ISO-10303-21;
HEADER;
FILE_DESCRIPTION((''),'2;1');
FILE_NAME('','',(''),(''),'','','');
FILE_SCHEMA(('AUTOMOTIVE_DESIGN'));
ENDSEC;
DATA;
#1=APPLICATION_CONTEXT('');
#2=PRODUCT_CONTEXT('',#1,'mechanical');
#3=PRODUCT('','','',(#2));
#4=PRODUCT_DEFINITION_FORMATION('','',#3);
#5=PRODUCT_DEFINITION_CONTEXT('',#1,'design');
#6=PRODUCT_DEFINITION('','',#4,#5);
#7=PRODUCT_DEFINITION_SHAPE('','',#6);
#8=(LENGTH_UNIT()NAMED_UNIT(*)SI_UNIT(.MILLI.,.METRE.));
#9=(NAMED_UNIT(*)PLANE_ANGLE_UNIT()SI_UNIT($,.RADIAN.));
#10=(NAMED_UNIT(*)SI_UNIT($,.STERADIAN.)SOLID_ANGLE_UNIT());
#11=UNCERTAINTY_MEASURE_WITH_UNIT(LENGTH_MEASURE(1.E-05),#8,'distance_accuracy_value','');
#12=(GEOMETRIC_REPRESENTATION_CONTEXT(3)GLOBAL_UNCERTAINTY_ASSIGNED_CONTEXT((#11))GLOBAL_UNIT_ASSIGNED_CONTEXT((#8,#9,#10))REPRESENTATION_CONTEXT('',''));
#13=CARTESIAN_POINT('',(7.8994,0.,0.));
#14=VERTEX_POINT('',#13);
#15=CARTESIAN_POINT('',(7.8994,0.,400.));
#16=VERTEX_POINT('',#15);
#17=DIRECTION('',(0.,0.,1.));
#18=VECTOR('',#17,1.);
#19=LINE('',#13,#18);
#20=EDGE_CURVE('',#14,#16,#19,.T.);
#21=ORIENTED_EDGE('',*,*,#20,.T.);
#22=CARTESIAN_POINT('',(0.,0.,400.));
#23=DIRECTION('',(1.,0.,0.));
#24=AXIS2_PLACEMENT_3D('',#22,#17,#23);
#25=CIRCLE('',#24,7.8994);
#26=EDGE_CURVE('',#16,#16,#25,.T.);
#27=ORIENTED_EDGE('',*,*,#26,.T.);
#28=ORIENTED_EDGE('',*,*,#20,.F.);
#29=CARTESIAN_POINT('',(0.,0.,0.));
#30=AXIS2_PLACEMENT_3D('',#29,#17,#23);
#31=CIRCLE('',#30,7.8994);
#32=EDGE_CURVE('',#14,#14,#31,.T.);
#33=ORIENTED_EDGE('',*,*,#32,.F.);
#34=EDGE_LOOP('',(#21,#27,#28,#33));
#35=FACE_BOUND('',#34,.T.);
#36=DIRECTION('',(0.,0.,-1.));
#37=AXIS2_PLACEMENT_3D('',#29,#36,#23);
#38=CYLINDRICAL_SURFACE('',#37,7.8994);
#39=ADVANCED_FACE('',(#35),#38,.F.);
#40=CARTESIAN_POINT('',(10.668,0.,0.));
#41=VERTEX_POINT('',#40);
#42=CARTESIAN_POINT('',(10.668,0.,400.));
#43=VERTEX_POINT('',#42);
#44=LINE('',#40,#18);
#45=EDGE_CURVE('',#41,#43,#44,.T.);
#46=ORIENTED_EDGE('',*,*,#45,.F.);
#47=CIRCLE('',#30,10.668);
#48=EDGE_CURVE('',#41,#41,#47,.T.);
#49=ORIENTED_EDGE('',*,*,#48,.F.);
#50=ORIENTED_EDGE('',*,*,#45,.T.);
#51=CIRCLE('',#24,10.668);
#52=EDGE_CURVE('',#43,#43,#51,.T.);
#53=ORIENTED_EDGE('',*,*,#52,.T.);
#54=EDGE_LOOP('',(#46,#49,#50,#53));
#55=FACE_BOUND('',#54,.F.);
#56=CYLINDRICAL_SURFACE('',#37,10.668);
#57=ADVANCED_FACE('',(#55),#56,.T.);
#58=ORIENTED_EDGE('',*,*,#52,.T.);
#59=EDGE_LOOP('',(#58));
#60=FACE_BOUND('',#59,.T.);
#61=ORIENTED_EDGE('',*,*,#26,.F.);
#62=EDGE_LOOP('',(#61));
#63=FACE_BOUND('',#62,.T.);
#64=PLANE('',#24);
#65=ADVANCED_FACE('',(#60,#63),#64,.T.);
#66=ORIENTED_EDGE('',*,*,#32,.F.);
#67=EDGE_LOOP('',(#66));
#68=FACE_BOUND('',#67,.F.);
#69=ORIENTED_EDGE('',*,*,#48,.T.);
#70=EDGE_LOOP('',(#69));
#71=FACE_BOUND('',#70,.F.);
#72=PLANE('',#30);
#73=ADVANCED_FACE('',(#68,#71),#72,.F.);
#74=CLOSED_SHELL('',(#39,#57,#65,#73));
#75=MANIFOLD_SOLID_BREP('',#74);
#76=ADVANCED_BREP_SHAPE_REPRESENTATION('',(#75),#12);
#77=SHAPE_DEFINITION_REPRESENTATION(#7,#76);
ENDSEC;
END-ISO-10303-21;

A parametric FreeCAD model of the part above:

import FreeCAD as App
import Part
import Sketcher
Q = App.Units.Quantity

doc = App.newDocument("Part")
params = doc.addObject("Spreadsheet::Sheet", "Params")
for row, (alias, value) in enumerate([
    ("sketch1_diameter", "0.84 in"),
    ("sketch1_diameter2", "0.622 in"),
    ("pad1_length", "400 mm"),
], start=1):
    params.set(f"A{row}", alias)
    params.set(f"B{row}", "=" + value)
    params.setAlias(f"B{row}", alias)

body = doc.addObject("PartDesign::Body", "Body")

sketch1 = doc.addObject("Sketcher::SketchObject", "Sketch")
body.addObject(sketch1)
sketch1.AttachmentSupport = (doc.XY_Plane, [""])
sketch1.MapMode = "FlatFace"
sketch1.addGeometry(Part.Circle(App.Vector(0, 0, 0), App.Vector(0, 0, 1), 11), False)
sketch1.addGeometry(Part.Circle(App.Vector(0, 0, 0), App.Vector(0, 0, 1), 8), False)
sketch1.addConstraint(Sketcher.Constraint("Coincident", 0, 3, -1, 1))
sketch1.addConstraint(Sketcher.Constraint("Coincident", 1, 3, -1, 1))
sketch1.addConstraint(Sketcher.Constraint("Diameter", 0, Q("0.84 in")))
sketch1.addConstraint(Sketcher.Constraint("Diameter", 1, Q("0.622 in")))
sketch1.setExpression("Constraints[2]", "Params.sketch1_diameter")
sketch1.setExpression("Constraints[3]", "Params.sketch1_diameter2")
pad1 = doc.addObject("PartDesign::Pad", "Pad")
body.addObject(pad1)
pad1.Profile = sketch1
pad1.setExpression("Length", "Params.pad1_length")

doc.recompute()
